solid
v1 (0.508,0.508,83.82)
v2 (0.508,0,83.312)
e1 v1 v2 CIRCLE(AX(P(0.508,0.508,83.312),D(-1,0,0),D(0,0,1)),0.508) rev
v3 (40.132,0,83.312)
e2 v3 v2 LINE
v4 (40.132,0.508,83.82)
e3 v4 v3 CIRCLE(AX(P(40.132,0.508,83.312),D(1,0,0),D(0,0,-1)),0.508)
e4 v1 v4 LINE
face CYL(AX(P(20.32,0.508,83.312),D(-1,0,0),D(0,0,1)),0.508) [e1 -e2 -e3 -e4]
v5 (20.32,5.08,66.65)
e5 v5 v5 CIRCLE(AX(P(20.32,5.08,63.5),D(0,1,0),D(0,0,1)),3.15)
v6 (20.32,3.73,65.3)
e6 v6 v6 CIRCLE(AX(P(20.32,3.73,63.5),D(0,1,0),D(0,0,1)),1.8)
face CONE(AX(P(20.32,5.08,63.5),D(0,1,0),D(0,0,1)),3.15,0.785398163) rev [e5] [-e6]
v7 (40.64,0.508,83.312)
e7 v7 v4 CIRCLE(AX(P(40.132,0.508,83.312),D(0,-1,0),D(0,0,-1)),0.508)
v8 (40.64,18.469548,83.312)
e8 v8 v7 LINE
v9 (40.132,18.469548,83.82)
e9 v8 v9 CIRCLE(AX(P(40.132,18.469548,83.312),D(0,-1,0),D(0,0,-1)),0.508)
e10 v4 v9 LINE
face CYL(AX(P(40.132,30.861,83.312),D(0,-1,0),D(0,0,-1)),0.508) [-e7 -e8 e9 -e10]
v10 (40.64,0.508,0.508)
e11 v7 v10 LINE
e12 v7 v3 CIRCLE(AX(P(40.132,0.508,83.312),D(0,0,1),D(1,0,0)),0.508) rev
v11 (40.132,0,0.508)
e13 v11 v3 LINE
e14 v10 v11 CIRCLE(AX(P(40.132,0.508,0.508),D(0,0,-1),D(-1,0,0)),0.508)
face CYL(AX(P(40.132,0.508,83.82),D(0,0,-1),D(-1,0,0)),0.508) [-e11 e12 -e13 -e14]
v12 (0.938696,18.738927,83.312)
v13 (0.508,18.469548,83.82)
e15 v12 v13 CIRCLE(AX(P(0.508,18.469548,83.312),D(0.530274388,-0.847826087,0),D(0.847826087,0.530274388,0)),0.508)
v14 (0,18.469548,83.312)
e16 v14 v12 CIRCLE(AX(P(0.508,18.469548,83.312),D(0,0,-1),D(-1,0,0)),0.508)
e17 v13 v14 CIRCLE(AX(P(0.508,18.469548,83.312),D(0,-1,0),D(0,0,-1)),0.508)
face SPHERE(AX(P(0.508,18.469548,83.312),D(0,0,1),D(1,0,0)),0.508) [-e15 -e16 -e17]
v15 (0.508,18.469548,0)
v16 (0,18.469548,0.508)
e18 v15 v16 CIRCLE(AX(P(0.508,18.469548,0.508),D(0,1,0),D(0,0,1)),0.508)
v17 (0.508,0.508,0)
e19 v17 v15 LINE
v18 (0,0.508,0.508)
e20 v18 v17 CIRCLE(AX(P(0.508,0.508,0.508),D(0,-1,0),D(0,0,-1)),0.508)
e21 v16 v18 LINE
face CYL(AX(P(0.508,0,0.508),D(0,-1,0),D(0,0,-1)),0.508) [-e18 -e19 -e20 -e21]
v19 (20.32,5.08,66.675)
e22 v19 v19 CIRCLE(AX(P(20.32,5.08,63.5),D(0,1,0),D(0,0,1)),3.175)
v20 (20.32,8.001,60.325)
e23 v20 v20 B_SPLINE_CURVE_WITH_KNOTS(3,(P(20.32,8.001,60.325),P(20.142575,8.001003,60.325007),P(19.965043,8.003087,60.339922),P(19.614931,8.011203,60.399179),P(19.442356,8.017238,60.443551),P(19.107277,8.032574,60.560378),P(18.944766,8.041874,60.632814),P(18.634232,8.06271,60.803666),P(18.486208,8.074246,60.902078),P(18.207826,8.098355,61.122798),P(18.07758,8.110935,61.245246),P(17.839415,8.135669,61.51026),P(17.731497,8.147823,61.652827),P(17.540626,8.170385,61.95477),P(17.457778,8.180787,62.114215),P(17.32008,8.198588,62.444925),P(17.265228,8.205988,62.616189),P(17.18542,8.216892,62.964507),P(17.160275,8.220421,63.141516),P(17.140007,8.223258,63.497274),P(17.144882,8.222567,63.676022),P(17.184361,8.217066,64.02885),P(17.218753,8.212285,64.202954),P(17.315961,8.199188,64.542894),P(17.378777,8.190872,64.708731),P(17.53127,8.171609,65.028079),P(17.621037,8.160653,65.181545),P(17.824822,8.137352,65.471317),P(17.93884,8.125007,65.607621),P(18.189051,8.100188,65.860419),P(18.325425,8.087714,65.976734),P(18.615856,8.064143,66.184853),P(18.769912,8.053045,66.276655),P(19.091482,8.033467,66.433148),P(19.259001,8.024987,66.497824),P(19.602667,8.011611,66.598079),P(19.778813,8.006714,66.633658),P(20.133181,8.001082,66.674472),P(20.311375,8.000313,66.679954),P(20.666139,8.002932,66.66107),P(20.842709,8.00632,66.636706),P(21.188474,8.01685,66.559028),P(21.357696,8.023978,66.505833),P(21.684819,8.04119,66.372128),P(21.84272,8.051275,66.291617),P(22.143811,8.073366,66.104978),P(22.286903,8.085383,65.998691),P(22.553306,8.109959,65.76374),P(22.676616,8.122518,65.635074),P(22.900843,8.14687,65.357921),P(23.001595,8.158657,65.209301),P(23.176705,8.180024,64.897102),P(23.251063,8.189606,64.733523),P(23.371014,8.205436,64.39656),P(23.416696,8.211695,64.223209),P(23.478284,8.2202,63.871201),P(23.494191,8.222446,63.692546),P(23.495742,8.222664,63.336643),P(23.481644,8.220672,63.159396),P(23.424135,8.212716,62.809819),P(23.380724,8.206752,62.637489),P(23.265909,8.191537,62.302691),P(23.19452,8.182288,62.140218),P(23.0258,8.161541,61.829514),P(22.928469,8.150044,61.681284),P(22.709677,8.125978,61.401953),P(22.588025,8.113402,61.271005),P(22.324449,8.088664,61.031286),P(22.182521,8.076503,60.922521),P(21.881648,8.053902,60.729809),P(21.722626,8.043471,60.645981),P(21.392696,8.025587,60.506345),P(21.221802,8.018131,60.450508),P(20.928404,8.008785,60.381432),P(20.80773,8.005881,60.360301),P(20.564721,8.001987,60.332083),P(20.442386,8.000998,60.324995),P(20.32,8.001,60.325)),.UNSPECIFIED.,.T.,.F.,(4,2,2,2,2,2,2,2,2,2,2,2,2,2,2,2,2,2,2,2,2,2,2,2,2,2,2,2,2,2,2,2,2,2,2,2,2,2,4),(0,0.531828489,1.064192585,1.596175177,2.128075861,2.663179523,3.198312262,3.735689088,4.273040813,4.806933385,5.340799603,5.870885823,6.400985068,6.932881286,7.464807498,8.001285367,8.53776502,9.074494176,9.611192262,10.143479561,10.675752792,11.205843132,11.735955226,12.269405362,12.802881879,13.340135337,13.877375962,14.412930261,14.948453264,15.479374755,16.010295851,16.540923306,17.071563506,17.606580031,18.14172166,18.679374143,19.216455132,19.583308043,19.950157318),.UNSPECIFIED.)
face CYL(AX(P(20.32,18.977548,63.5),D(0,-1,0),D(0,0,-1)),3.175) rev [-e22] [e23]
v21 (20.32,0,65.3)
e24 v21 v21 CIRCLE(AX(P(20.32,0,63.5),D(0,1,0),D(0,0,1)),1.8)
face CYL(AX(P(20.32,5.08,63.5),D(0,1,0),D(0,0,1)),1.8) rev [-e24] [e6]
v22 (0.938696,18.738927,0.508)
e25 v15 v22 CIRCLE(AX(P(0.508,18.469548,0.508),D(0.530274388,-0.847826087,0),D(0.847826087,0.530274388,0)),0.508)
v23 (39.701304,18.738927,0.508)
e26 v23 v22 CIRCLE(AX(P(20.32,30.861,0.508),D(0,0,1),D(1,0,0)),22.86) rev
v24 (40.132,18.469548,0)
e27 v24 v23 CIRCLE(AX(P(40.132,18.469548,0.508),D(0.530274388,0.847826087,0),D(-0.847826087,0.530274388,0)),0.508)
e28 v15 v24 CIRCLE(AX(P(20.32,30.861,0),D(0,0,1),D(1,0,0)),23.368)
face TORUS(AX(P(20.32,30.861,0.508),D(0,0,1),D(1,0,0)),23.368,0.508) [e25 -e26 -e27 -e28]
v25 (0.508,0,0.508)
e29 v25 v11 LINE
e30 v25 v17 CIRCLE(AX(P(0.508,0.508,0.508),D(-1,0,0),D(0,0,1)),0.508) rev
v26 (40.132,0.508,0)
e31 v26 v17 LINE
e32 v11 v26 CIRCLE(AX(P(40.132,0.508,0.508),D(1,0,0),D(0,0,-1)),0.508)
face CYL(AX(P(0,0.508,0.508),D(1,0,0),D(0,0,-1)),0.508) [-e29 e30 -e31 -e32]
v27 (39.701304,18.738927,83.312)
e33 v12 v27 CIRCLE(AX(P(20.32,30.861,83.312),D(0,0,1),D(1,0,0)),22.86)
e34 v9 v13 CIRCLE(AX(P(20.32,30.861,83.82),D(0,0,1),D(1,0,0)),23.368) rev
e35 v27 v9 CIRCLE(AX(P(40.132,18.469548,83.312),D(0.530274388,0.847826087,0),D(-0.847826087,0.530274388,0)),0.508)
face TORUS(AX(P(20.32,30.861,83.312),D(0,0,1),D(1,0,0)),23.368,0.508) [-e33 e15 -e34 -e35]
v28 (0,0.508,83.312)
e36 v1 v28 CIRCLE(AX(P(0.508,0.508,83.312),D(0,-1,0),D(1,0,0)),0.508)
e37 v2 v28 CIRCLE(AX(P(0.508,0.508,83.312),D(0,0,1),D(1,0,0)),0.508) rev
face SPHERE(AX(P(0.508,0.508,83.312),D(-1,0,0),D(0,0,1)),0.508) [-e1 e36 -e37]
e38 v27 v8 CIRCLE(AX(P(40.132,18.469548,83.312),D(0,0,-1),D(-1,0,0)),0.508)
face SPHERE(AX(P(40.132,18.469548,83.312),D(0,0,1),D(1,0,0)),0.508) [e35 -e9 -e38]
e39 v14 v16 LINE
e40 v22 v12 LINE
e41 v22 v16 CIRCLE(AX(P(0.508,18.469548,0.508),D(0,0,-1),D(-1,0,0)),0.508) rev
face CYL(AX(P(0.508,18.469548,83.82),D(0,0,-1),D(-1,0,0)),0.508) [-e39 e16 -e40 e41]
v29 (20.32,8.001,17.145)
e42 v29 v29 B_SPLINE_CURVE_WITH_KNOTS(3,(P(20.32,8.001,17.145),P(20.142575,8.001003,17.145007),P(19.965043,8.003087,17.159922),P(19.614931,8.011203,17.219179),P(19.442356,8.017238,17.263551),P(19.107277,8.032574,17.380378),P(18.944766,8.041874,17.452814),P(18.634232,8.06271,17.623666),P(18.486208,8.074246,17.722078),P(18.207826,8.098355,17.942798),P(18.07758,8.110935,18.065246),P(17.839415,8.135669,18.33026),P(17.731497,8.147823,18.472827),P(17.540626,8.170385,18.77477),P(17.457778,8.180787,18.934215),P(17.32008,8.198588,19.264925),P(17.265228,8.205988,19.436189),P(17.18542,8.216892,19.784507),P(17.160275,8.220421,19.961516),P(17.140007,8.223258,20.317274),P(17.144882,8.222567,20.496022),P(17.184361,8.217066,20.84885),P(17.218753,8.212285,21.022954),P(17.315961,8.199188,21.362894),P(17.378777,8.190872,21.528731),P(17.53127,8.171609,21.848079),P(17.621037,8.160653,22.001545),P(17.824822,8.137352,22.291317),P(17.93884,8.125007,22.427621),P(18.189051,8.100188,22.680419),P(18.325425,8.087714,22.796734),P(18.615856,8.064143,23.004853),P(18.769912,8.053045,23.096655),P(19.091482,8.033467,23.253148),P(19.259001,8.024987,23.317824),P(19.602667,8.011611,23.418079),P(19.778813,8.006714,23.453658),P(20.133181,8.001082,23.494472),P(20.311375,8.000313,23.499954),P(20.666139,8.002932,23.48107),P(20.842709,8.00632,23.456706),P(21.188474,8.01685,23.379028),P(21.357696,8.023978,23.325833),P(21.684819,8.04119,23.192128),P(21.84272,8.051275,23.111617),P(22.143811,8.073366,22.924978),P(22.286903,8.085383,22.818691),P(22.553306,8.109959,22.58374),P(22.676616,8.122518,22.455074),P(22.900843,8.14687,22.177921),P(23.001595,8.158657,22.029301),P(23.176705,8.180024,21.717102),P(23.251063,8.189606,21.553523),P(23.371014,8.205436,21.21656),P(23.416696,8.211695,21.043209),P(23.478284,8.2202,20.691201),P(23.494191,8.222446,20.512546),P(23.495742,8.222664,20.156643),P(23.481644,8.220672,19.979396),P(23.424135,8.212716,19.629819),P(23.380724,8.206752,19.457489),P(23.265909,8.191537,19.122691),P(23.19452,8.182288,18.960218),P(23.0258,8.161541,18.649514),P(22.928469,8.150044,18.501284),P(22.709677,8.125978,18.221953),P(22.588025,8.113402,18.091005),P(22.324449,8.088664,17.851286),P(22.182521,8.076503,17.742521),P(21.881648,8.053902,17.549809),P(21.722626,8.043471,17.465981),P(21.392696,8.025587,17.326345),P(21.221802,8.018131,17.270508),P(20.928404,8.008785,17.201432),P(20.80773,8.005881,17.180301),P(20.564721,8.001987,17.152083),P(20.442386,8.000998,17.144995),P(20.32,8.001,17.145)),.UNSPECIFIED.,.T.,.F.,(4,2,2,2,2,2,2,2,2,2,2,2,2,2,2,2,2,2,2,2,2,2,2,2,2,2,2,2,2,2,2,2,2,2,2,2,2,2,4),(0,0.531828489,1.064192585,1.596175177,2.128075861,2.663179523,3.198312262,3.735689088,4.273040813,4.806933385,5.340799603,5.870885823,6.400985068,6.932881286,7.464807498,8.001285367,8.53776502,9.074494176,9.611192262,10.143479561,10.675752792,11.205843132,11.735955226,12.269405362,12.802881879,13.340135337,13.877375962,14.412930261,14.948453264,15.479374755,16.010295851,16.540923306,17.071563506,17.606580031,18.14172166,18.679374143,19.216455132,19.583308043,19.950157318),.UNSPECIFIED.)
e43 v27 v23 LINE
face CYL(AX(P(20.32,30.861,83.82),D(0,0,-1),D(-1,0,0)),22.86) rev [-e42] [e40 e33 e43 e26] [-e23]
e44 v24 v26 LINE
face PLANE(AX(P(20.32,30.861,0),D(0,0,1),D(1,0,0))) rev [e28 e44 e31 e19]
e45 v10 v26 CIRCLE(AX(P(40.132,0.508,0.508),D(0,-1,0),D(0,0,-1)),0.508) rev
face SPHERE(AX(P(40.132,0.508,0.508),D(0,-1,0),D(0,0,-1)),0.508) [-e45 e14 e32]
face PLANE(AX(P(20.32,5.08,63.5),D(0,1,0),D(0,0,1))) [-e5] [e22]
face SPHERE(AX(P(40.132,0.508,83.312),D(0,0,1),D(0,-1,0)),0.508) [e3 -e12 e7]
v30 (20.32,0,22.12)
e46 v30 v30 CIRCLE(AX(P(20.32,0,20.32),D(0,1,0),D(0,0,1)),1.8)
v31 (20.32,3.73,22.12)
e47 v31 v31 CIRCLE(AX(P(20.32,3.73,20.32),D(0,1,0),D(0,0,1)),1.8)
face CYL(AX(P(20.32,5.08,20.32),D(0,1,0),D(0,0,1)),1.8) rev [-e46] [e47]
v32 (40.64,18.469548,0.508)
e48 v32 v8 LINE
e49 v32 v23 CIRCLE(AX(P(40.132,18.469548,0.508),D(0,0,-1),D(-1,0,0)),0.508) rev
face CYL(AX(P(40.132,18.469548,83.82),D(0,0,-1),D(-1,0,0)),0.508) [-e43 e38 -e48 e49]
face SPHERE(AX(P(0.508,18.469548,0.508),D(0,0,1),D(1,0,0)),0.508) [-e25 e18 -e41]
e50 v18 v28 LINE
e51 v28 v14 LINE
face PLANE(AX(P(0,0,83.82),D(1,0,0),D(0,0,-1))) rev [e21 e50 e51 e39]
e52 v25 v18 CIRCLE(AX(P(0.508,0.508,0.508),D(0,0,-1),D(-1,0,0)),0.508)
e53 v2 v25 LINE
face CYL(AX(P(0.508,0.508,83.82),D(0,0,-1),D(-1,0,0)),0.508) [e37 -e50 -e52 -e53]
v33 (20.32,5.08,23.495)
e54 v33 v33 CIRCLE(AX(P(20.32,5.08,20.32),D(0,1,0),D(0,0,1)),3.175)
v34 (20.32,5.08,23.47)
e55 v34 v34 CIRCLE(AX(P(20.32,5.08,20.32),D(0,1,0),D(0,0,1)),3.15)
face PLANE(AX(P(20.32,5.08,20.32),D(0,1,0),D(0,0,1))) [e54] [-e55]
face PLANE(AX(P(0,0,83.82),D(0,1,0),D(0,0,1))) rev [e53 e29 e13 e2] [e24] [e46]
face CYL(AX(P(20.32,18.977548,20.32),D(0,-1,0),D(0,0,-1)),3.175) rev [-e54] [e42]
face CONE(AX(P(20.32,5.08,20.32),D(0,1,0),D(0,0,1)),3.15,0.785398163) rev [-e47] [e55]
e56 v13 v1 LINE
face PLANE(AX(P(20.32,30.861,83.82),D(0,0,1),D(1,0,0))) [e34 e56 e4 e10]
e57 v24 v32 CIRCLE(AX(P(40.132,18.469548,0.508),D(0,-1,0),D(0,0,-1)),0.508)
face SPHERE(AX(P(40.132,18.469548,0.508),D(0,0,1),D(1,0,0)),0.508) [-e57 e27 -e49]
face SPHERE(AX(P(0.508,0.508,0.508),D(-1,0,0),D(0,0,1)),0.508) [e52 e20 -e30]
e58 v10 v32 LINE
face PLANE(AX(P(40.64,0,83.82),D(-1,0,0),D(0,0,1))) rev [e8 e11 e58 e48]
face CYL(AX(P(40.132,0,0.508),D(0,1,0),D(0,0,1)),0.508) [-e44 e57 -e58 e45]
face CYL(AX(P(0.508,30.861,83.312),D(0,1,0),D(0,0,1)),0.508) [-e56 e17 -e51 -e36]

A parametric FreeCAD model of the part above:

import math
import FreeCAD as App
import Part
import Sketcher

V = App.Vector
Q = App.Units.Quantity


def edges_at(feature, points):
    """Names of the edges that pass closest to the given points."""
    edges = feature.Shape.Edges
    near = lambda p: min(range(len(edges)), key=lambda i: edges[i].distToShape(Part.Vertex(*p))[0])
    return sorted({f"Edge{near(p) + 1}" for p in points})

doc = App.newDocument("Part")
body = doc.addObject("PartDesign::Body", "Body")

# Sketch on XY plane
sketch1 = body.newObject("Sketcher::SketchObject", "Sketch")
sketch1.AttachmentSupport = (doc.getObject("XY_Plane"), [""])
sketch1.MapMode = "FlatFace"
sketch1.addGeometry(Part.LineSegment(V(0, 0, 0), V(41, 0, 0)), False)
sketch1.addGeometry(Part.LineSegment(V(41, 0, 0), V(41, 20, 0)), False)
sketch1.addGeometry(Part.ArcOfCircle(Part.Circle(V(20, 31, 0), V(0, 0, 1), 23), math.radians(-153), math.radians(-27)), False)
sketch1.addGeometry(Part.LineSegment(V(0, 20, 0), V(0, 0, 0)), False)
sketch1.addConstraint(Sketcher.Constraint("Coincident", 0, 2, 1, 1))
sketch1.addConstraint(Sketcher.Constraint("Coincident", 1, 2, 2, 2))
sketch1.addConstraint(Sketcher.Constraint("Coincident", 2, 1, 3, 1))
sketch1.addConstraint(Sketcher.Constraint("Coincident", 3, 2, 0, 1))
sketch1.addConstraint(Sketcher.Constraint("Horizontal", 0))
sketch1.addConstraint(Sketcher.Constraint("Vertical", 1))
sketch1.addConstraint(Sketcher.Constraint("Vertical", 3))
sketch1.addConstraint(Sketcher.Constraint("Coincident", 3, 2, -1, 1))
sketch1.addConstraint(Sketcher.Constraint("Horizontal", 1, 2, 2, 1))
sketch1.addConstraint(Sketcher.Constraint("Radius", 2, Q("0.9 in")))
sketch1.addConstraint(Sketcher.Constraint("DistanceX", 0, 1, 0, 2, Q("1.6 in")))
sketch1.addConstraint(Sketcher.Constraint("DistanceY", -1, 1, 2, 3, Q("1.215 in")))
pad1 = body.newObject("PartDesign::Pad", "Pad")
pad1.Profile = sketch1
pad1.Length = Q("3.3 in")
doc.recompute()

fillet = body.newObject("PartDesign::Fillet", "Fillet")
fillet.Base = (pad1, edges_at(pad1, [(0, 20.388, 41.91), (40.64, 20.388, 41.91)]))
fillet.Radius = Q("0.02 in")

# Sketch on XZ plane
sketch2 = body.newObject("Sketcher::SketchObject", "Sketch001")
sketch2.AttachmentSupport = (doc.getObject("XZ_Plane"), [""])
sketch2.MapMode = "FlatFace"
sketch2.AttachmentOffset = App.Placement(V(0, 0, -0.2 * 25.4), App.Rotation())
sketch2.addGeometry(Part.Circle(V(20.3, 20.3, 0), V(0, 0, 1), 3.2), False)
sketch2.addGeometry(Part.Circle(V(20.3, 63.5, 0), V(0, 0, 1), 3.2), False)
sketch2.addConstraint(Sketcher.Constraint("Equal", 0, 1))
sketch2.addConstraint(Sketcher.Constraint("Vertical", 0, 3, 1, 3))
sketch2.addConstraint(Sketcher.Constraint("Diameter", 0, Q("0.25 in")))
sketch2.addConstraint(Sketcher.Constraint("DistanceX", -1, 1, 0, 3, Q("0.8 in")))
sketch2.addConstraint(Sketcher.Constraint("DistanceY", -1, 1, 0, 3, Q("0.8 in")))
sketch2.addConstraint(Sketcher.Constraint("DistanceY", -1, 1, 1, 3, Q("2.5 in")))
pocket1 = body.newObject("PartDesign::Pocket", "Pocket")
pocket1.Profile = sketch2
pocket1.Type = "ThroughAll"

# Sketch on XZ plane
sketch3 = body.newObject("Sketcher::SketchObject", "Sketch002")
sketch3.AttachmentSupport = (doc.getObject("XZ_Plane"), [""])
sketch3.MapMode = "FlatFace"
sketch3.AttachmentOffset = App.Placement(V(0, 0, -0.2 * 25.4), App.Rotation())
sketch3.addGeometry(Part.Circle(V(20.3, 20.3, 0), V(0, 0, 1), 1.8), False)
sketch3.addGeometry(Part.Circle(V(20.3, 63.5, 0), V(0, 0, 1), 1.8), False)
sketch3.addConstraint(Sketcher.Constraint("Equal", 0, 1))
sketch3.addConstraint(Sketcher.Constraint("Vertical", 0, 3, 1, 3))
sketch3.addConstraint(Sketcher.Constraint("DistanceX", -1, 1, 0, 3, Q("0.8 in")))
sketch3.addConstraint(Sketcher.Constraint("DistanceY", -1, 1, 0, 3, Q("0.8 in")))
sketch3.addConstraint(Sketcher.Constraint("DistanceY", -1, 1, 1, 3, Q("2.5 in")))
sketch3.addConstraint(Sketcher.Constraint("Diameter", 0, 3.6))
doc.recompute()
hole = body.newObject("PartDesign::Hole", "Hole")
hole.Profile = sketch3
hole.ThreadType = "None"
hole.Diameter = 3.6
hole.DepthType = "Dimension"
hole.Depth = Q("16.51 in")
hole.DrillPoint = "Angled"
hole.DrillPointAngle = 118
hole.HoleCutType = "Countersink"
hole.HoleCutDiameter = 6.3
hole.HoleCutCountersinkAngle = 90
hole.Reversed = True
doc.recompute()

fillet2 = body.newObject("PartDesign::Fillet", "Fillet001")
fillet2.Base = (hole, edges_at(hole, [
    (40.64, 9.235, 83.82),
    (20.32, 8.001, 0),
    (20.32, 8.001, 83.82),
    (0, 9.235, 0),
    (0.368, 18.958, 0),
    (40.272, 18.958, 0),
    (0, 9.235, 83.82),
    (0.368, 18.958, 83.82),
    (40.272, 18.958, 83.82),
    (40.64, 9.235, 0),
    (20.32, 0, 0),
    (40.64, 0, 41.91),
    (0, 0, 41.91),
    (20.32, 0, 83.82),
]))
fillet2.Radius = Q("0.02 in")

doc.recompute()
